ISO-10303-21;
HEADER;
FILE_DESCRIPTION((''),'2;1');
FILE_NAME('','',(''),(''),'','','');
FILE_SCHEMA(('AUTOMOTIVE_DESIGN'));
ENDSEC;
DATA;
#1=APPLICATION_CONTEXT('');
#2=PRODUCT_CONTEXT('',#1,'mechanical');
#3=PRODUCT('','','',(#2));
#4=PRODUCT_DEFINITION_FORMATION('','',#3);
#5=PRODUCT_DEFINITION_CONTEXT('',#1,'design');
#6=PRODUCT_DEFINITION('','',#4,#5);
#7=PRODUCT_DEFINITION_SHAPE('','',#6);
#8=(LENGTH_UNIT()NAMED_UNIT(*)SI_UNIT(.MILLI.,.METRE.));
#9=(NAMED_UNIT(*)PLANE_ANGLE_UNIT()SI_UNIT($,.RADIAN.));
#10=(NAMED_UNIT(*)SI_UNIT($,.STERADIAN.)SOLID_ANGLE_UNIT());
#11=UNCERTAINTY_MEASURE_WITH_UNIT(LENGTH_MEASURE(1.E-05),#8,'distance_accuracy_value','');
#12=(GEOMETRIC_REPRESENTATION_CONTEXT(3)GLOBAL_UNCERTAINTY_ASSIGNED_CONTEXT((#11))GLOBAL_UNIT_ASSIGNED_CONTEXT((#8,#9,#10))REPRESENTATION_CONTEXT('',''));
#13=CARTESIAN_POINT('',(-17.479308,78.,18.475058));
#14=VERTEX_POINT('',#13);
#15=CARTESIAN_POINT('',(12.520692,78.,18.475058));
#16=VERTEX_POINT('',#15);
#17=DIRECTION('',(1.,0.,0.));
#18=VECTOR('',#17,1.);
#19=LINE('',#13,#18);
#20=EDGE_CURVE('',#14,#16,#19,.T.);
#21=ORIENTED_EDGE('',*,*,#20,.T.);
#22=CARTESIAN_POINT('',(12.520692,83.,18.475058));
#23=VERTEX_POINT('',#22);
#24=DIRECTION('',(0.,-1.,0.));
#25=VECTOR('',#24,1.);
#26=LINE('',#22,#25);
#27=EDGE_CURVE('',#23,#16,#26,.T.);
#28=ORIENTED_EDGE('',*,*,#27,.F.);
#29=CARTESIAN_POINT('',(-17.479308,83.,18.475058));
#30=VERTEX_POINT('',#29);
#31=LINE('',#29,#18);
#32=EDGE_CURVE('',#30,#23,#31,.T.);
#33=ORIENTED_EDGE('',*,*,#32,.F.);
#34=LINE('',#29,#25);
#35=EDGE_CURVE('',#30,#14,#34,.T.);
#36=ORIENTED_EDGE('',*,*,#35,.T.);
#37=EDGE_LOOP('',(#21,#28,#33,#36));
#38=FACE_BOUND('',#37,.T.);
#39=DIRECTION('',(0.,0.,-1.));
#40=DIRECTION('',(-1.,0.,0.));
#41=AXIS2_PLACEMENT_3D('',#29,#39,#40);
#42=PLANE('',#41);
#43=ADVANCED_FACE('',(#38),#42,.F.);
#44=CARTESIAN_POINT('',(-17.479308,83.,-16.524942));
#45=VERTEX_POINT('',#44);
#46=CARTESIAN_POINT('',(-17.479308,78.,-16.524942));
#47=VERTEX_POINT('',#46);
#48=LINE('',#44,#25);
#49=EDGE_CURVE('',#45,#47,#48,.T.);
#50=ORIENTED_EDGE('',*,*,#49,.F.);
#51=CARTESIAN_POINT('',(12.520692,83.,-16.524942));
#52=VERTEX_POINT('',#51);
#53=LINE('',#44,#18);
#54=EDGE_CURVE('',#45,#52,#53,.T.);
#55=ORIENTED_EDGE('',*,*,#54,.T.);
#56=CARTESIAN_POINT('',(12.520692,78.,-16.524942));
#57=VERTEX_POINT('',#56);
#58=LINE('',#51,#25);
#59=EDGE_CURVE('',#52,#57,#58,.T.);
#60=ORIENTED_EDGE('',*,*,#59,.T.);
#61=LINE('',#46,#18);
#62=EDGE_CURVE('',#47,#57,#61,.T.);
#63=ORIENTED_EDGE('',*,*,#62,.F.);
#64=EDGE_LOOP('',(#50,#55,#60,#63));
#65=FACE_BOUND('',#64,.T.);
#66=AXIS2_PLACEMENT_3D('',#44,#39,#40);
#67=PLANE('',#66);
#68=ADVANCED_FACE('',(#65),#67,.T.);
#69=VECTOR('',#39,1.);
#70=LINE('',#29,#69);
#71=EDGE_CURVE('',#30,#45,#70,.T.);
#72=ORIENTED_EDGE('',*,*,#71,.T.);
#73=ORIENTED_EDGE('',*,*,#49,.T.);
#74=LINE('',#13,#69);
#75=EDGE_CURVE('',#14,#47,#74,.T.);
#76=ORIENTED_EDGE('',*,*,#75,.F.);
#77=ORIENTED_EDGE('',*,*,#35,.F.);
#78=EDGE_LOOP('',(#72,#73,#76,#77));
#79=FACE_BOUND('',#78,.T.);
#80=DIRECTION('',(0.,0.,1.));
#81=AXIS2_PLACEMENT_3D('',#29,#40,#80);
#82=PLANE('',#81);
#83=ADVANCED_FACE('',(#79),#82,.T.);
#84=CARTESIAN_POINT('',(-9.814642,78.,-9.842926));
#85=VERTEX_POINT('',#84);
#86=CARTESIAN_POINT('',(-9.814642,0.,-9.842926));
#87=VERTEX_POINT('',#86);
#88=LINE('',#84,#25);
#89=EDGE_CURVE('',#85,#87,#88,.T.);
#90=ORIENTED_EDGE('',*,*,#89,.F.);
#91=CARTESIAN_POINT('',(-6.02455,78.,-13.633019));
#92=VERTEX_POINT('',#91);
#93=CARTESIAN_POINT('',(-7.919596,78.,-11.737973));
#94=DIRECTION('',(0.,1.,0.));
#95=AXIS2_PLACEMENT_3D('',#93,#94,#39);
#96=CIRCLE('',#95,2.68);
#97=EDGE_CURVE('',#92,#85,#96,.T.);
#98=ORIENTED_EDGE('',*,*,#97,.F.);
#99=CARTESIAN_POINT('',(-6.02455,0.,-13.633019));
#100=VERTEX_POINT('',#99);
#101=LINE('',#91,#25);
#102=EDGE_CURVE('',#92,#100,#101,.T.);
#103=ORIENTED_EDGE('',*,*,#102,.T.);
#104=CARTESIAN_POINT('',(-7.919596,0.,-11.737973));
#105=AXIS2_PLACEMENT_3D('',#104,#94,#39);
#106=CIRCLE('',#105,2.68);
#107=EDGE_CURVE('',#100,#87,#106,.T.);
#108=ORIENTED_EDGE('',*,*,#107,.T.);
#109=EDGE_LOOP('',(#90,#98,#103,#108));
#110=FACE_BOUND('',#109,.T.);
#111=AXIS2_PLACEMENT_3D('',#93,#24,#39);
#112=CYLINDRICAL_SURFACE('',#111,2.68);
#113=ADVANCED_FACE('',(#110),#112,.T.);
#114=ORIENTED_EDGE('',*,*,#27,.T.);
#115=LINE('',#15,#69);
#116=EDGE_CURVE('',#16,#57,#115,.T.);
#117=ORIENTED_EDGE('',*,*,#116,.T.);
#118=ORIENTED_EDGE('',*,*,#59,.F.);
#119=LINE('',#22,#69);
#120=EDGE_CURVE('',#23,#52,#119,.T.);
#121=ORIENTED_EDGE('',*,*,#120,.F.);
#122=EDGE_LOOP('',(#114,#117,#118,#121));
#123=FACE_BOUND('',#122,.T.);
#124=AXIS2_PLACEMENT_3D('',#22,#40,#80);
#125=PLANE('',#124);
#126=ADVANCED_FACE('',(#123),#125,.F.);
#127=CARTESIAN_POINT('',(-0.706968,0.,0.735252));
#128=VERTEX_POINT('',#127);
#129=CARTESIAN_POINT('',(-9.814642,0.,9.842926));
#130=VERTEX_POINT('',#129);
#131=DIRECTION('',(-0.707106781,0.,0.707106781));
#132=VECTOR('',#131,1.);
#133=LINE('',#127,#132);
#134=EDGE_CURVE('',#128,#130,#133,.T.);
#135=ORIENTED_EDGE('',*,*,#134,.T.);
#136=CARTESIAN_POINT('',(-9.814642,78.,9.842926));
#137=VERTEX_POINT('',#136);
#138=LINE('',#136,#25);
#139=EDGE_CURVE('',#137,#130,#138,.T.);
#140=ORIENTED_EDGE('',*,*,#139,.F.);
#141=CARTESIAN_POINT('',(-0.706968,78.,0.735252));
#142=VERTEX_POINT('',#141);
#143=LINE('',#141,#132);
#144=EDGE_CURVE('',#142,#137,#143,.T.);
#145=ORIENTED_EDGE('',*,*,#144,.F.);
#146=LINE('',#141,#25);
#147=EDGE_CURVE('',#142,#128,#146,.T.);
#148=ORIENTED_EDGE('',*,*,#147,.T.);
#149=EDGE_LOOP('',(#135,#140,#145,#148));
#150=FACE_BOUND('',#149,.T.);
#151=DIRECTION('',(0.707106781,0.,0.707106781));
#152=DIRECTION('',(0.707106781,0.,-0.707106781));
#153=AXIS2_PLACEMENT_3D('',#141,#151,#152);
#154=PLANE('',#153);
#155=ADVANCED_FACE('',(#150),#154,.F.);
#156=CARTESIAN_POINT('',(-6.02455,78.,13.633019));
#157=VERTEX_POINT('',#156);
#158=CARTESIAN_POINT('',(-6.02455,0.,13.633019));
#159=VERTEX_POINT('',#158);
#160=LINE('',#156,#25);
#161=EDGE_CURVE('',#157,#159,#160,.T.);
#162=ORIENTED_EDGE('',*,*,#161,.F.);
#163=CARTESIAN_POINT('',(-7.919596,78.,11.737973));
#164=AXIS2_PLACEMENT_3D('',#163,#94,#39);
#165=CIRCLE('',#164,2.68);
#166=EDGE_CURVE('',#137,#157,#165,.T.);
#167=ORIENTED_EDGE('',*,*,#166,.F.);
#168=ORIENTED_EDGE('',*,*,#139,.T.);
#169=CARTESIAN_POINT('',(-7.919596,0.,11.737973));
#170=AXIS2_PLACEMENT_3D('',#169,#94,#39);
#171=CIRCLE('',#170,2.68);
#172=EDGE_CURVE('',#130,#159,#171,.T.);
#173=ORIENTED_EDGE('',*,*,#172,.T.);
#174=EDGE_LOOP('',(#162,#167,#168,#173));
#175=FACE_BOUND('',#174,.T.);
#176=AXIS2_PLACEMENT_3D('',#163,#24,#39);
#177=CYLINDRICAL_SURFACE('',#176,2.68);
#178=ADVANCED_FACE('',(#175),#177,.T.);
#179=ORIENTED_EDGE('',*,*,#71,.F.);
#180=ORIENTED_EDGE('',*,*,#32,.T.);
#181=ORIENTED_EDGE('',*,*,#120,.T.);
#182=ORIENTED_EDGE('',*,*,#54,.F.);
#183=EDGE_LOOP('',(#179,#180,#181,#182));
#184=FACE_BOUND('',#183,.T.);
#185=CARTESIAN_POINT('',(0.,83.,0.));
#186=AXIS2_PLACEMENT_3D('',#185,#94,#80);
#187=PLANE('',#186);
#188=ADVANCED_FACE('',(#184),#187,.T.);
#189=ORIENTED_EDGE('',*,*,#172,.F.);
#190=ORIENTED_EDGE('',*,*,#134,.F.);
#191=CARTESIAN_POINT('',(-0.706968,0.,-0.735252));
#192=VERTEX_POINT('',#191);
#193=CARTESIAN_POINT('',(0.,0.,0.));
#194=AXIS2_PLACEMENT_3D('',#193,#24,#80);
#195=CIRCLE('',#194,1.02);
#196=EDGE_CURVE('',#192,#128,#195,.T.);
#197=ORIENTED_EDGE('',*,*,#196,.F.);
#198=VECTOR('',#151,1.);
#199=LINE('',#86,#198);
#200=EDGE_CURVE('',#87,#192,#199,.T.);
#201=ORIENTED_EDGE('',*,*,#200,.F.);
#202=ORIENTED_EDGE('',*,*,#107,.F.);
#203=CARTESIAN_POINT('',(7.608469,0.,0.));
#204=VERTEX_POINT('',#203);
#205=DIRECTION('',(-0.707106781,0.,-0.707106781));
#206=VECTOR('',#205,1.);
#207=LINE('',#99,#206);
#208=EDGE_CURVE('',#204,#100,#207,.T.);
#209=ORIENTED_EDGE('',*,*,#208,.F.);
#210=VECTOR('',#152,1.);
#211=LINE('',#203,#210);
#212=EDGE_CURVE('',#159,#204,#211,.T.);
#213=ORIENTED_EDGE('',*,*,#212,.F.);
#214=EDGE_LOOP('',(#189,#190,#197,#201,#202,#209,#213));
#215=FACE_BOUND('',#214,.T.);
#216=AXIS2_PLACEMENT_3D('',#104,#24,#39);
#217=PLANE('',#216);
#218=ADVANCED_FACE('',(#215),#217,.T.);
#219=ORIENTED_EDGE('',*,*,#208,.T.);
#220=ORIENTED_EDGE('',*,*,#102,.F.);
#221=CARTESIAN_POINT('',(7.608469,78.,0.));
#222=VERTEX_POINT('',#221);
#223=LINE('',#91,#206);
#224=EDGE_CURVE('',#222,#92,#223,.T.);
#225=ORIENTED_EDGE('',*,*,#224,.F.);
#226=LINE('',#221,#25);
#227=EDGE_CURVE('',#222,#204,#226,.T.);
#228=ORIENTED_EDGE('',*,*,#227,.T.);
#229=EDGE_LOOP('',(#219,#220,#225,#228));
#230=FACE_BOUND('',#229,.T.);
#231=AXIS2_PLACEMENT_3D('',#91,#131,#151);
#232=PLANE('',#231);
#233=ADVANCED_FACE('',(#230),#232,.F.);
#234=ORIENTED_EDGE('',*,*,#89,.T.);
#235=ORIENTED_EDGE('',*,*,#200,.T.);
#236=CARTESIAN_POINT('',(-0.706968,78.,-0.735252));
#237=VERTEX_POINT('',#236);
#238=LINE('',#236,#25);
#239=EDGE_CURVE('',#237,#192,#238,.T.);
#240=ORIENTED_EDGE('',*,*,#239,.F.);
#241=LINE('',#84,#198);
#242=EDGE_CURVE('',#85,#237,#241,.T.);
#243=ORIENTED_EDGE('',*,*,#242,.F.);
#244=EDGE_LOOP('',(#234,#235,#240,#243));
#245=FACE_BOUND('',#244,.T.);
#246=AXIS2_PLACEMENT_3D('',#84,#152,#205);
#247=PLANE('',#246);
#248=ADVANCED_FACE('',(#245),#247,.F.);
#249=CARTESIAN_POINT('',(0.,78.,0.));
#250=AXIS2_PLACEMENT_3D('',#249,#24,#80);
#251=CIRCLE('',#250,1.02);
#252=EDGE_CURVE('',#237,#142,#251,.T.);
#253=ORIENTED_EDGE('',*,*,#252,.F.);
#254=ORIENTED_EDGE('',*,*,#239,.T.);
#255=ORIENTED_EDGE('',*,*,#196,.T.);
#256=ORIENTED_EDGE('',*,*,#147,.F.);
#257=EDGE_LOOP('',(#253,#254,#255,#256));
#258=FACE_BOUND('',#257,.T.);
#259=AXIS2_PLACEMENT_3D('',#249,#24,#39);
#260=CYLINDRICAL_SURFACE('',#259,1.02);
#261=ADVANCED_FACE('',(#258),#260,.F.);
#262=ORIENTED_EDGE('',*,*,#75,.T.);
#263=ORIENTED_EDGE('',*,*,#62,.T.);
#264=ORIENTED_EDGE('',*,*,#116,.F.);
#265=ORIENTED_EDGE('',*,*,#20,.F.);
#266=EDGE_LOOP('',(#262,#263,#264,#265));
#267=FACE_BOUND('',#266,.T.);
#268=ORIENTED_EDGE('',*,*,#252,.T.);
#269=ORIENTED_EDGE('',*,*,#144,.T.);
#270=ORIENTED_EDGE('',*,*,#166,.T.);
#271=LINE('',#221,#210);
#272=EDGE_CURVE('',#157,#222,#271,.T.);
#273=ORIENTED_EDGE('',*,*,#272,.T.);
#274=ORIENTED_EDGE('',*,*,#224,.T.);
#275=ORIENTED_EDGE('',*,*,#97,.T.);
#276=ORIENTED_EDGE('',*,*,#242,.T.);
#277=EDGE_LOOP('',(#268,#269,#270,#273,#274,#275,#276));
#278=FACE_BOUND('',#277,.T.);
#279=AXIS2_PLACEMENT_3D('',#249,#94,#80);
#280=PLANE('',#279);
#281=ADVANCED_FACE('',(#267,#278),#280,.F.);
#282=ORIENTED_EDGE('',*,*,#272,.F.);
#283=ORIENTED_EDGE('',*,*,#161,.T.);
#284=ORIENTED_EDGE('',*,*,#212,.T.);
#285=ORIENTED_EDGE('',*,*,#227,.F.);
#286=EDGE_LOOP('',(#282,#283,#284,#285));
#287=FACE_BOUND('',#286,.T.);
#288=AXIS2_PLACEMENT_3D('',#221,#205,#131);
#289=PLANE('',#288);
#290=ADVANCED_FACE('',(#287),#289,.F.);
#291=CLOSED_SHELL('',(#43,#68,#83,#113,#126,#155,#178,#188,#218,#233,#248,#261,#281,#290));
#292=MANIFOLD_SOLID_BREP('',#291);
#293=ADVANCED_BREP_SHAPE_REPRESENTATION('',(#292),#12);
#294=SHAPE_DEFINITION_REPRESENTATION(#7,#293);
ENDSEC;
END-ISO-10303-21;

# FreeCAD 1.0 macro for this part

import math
import FreeCAD as App
import Part
import Sketcher

V = App.Vector


def add_polygon(sketch, points):
    """Adds a closed chain of lines whose ends are joined by coincident constraints."""
    first, n = sketch.GeometryCount, len(points)
    for a, b in zip(points, points[1:] + points[:1]):
        sketch.addGeometry(Part.LineSegment(App.Vector(*a, 0), App.Vector(*b, 0)), False)
    for i in range(n):
        sketch.addConstraint(Sketcher.Constraint("Coincident", first + i, 2, first + (i + 1) % n, 1))

doc = App.newDocument("Part")
params = doc.addObject("Spreadsheet::Sheet", "Params")
for row, (alias, value) in enumerate([
    ("sketch1_radius", "2.68 mm"),
    ("sketch1_radius2", "1.02 mm"),
    ("sketch1_length", "19.28 mm"),
    ("pad1_length", "78 mm"),
    ("sketch2_width", "30 mm"),
    ("sketch2_height", "35 mm"),
    ("pad2_length", "5 mm"),
], start=1):
    params.set(f"A{row}", alias)
    params.set(f"B{row}", "=" + value)
    params.setAlias(f"B{row}", alias)

body = doc.addObject("PartDesign::Body", "Body")

# Sketch on XZ plane
sketch1 = body.newObject("Sketcher::SketchObject", "Sketch")
sketch1.AttachmentSupport = (doc.getObject("XZ_Plane"), [""])
sketch1.MapMode = "FlatFace"
sketch1.addGeometry(Part.LineSegment(V(7.6, 0, 0), V(-6, -13.6, 0)), False)
sketch1.addGeometry(Part.ArcOfCircle(Part.Circle(V(-7.9, -11.7, 0), V(0, 0, 1), 2.7), math.radians(135), math.radians(315)), False)
sketch1.addGeometry(Part.LineSegment(V(-9.8, -9.8, 0), V(-0.7, -0.7, 0)), False)
sketch1.addGeometry(Part.ArcOfCircle(Part.Circle(V(0, 0, 0), V(0, 0, 1), 1), math.radians(-134), math.radians(134)), False)
sketch1.addGeometry(Part.LineSegment(V(-0.7, 0.7, 0), V(-9.8, 9.8, 0)), False)
sketch1.addGeometry(Part.ArcOfCircle(Part.Circle(V(-7.9, 11.7, 0), V(0, 0, 1), 2.7), math.radians(45), math.radians(225)), False)
sketch1.addGeometry(Part.LineSegment(V(-6, 13.6, 0), V(7.6, 0, 0)), False)
sketch1.addConstraint(Sketcher.Constraint("Tangent", 0, 2, 1, 2))
sketch1.addConstraint(Sketcher.Constraint("Tangent", 1, 1, 2, 1))
sketch1.addConstraint(Sketcher.Constraint("Coincident", 2, 2, 3, 1))
sketch1.addConstraint(Sketcher.Constraint("Coincident", 3, 2, 4, 1))
sketch1.addConstraint(Sketcher.Constraint("Tangent", 4, 2, 5, 2))
sketch1.addConstraint(Sketcher.Constraint("Tangent", 5, 1, 6, 1))
sketch1.addConstraint(Sketcher.Constraint("Coincident", 6, 2, 0, 1))
sketch1.addConstraint(Sketcher.Constraint("Coincident", 3, 3, -1, 1))
sketch1.addConstraint(Sketcher.Constraint("Equal", 1, 5))
sketch1.addConstraint(Sketcher.Constraint("Symmetric", 1, 3, 5, 3, -1))
sketch1.addConstraint(Sketcher.Constraint("PointOnObject", 6, 2, -1))
sketch1.addConstraint(Sketcher.Constraint("Parallel", 0, 2))
sketch1.addConstraint(Sketcher.Constraint("Perpendicular", 2, 4))
sketch1.addConstraint(Sketcher.Constraint("Parallel", 4, 6))
sketch1.addConstraint(Sketcher.Constraint("Radius", 1, 2.68))
sketch1.addConstraint(Sketcher.Constraint("Radius", 3, 1.02))
sketch1.addConstraint(Sketcher.Constraint("Distance", 0, 19.28))
sketch1.addConstraint(Sketcher.Constraint("DistanceX", 0, 2, -1, 1, 6.02455))
sketch1.setExpression("Constraints[14]", "Params.sketch1_radius")
sketch1.setExpression("Constraints[15]", "Params.sketch1_radius2")
sketch1.setExpression("Constraints[16]", "Params.sketch1_length")
pad1 = body.newObject("PartDesign::Pad", "Pad")
pad1.Profile = sketch1
pad1.setExpression("Length", "Params.pad1_length")
pad1.Reversed = True

# Sketch on XZ plane
sketch2 = body.newObject("Sketcher::SketchObject", "Sketch001")
sketch2.AttachmentSupport = (doc.getObject("XZ_Plane"), [""])
sketch2.MapMode = "FlatFace"
sketch2.AttachmentOffset = App.Placement(V(0, 0, -78), App.Rotation())
add_polygon(sketch2, [(-17, -17), (-17, 18), (13, 18), (13, -17)])  # lines 0-3
sketch2.addConstraint(Sketcher.Constraint("Vertical", 0))
sketch2.addConstraint(Sketcher.Constraint("Horizontal", 1))
sketch2.addConstraint(Sketcher.Constraint("Vertical", 2))
sketch2.addConstraint(Sketcher.Constraint("Horizontal", 3))
sketch2.addConstraint(Sketcher.Constraint("DistanceX", 1, 1, 1, 2, 30.0))
sketch2.addConstraint(Sketcher.Constraint("DistanceY", 0, 1, 0, 2, 35.0))
sketch2.addConstraint(Sketcher.Constraint("DistanceY", -1, 1, 0, 2, 18.475058))
sketch2.addConstraint(Sketcher.Constraint("DistanceX", 0, 2, -1, 1, 17.479308))
sketch2.setExpression("Constraints[8]", "Params.sketch2_width")
sketch2.setExpression("Constraints[9]", "Params.sketch2_height")
pad2 = body.newObject("PartDesign::Pad", "Pad001")
pad2.Profile = sketch2
pad2.setExpression("Length", "Params.pad2_length")
pad2.Reversed = True

doc.recompute()
